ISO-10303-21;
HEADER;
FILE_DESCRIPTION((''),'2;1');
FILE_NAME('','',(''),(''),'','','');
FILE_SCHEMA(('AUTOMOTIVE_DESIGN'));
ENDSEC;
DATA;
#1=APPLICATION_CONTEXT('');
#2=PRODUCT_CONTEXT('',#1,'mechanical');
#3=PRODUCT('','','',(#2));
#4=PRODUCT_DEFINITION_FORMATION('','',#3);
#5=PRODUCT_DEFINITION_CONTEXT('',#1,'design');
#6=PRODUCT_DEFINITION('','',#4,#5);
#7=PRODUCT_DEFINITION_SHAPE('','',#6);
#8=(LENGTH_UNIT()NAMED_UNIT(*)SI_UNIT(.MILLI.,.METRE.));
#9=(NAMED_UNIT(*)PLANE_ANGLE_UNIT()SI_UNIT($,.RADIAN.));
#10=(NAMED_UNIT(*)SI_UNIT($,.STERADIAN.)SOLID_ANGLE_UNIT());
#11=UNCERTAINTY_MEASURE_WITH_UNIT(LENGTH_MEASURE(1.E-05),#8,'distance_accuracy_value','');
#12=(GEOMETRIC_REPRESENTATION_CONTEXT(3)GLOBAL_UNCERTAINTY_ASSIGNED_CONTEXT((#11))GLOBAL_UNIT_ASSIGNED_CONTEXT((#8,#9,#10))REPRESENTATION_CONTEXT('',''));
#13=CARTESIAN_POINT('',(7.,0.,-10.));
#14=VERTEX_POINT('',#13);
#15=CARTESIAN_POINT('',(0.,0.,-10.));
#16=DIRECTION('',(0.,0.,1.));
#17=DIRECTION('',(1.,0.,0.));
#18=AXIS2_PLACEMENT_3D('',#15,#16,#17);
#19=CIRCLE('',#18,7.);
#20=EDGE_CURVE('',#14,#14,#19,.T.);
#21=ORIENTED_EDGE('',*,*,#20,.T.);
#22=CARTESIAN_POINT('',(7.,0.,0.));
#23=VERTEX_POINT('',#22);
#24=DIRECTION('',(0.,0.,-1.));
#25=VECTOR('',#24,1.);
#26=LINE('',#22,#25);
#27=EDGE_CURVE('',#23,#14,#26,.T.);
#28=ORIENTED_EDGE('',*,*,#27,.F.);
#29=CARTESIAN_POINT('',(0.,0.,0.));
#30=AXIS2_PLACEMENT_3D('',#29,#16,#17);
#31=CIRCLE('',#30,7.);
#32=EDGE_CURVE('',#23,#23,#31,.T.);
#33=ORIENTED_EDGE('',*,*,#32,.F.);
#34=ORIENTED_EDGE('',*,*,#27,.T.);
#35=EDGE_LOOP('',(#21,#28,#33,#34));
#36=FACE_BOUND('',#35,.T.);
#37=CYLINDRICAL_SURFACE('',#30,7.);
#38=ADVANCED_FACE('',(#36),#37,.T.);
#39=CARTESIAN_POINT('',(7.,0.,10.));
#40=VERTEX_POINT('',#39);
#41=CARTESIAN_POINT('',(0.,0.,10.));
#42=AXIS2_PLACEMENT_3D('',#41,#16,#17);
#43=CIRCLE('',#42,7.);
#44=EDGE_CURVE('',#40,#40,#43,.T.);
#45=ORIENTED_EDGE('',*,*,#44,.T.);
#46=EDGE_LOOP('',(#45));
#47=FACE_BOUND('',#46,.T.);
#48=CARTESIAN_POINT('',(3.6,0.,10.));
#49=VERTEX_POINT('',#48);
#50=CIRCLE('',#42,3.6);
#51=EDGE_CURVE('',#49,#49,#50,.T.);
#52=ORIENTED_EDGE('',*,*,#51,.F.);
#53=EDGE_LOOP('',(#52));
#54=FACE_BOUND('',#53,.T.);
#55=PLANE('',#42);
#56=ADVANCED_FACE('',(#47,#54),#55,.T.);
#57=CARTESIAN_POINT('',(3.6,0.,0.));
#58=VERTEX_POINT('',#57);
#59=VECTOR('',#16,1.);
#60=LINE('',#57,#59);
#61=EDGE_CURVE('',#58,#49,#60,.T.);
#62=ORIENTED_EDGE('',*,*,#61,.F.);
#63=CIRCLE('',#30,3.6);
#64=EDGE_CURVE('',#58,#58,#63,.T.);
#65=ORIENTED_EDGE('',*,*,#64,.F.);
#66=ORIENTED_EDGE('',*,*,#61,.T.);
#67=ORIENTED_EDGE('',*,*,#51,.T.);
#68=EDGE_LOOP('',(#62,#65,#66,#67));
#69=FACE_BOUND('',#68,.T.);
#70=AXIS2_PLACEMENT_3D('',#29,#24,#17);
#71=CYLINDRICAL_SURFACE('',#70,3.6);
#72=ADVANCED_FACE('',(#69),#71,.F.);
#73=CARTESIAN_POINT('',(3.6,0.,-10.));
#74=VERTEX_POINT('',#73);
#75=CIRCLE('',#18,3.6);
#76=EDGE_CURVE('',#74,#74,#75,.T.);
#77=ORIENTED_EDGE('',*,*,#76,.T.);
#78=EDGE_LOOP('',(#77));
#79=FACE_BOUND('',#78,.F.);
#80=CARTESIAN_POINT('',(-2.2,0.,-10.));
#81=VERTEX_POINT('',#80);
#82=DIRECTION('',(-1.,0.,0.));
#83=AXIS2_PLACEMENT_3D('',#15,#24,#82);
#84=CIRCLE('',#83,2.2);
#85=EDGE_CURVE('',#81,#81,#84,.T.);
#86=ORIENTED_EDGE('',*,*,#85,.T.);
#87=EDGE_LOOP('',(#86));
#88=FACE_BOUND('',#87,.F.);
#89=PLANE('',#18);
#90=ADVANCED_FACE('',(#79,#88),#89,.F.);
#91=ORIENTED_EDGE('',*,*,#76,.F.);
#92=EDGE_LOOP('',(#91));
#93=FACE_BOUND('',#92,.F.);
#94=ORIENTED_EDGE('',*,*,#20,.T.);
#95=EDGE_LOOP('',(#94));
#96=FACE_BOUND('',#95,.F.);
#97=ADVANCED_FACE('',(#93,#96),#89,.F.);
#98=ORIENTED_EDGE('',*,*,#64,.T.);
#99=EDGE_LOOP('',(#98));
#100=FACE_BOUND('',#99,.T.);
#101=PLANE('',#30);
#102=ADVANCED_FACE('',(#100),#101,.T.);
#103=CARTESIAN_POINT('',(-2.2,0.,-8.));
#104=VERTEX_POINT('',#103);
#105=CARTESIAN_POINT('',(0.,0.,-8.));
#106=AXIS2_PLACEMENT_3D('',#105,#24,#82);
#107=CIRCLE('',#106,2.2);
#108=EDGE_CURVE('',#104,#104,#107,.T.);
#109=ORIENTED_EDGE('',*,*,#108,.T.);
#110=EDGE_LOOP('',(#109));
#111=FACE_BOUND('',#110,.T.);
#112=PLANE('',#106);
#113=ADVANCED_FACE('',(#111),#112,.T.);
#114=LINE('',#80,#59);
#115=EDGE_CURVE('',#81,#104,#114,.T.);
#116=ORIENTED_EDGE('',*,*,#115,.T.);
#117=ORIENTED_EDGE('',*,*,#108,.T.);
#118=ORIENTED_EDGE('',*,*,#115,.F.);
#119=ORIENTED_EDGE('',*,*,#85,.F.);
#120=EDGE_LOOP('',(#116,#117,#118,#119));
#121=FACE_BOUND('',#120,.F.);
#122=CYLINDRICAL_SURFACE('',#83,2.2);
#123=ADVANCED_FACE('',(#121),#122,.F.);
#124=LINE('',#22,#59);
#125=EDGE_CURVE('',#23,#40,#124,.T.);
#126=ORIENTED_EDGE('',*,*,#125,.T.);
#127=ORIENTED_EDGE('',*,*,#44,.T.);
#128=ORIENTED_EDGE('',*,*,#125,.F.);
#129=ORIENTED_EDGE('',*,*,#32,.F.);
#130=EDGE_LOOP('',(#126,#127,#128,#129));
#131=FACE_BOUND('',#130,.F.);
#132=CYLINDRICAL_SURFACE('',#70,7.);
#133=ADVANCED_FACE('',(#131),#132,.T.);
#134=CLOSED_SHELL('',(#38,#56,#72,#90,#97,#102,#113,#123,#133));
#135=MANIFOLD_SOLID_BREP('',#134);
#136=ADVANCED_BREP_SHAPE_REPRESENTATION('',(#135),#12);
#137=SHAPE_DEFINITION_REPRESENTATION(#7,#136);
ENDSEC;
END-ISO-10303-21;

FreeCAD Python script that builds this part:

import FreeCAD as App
import Part
import Sketcher
Q = App.Units.Quantity

doc = App.newDocument("Part")
body = doc.addObject("PartDesign::Body", "Body")

sketch1 = doc.addObject("Sketcher::SketchObject", "Sketch")
body.addObject(sketch1)
sketch1.AttachmentSupport = (doc.XY_Plane, [""])
sketch1.MapMode = "FlatFace"
sketch1.addGeometry(Part.Circle(App.Vector(0, 0, 0), App.Vector(0, 0, 1), 7), False)
sketch1.addGeometry(Part.Circle(App.Vector(0, 0, 0), App.Vector(0, 0, 1), 3.6), False)
sketch1.addConstraint(Sketcher.Constraint("Coincident", 0, 3, -1, 1))
sketch1.addConstraint(Sketcher.Constraint("Coincident", 1, 3, -1, 1))
sketch1.addConstraint(Sketcher.Constraint("Diameter", 0, Q("14 mm")))
sketch1.addConstraint(Sketcher.Constraint("Diameter", 1, Q("7.2 mm")))
pad1 = doc.addObject("PartDesign::Pad", "Pad")
body.addObject(pad1)
pad1.Profile = sketch1
pad1.Length = 20
pad1.Midplane = True

sketch2 = doc.addObject("Sketcher::SketchObject", "Sketch001")
body.addObject(sketch2)
sketch2.AttachmentSupport = (doc.XY_Plane, [""])
sketch2.MapMode = "FlatFace"
sketch2.addGeometry(Part.Circle(App.Vector(0, 0, 0), App.Vector(0, 0, 1), 3.6), False)
sketch2.addConstraint(Sketcher.Constraint("Coincident", 0, 3, -1, 1))
sketch2.addConstraint(Sketcher.Constraint("Diameter", 0, Q("7.2 mm")))
pad2 = doc.addObject("PartDesign::Pad", "Pad001")
body.addObject(pad2)
pad2.Profile = sketch2
pad2.Length = 10
pad2.Reversed = True

sketch3 = doc.addObject("Sketcher::SketchObject", "Sketch002")
body.addObject(sketch3)
sketch3.AttachmentSupport = (doc.XY_Plane, [""])
sketch3.MapMode = "FlatFace"
sketch3.AttachmentOffset = App.Placement(App.Vector(0, 0, -10), App.Rotation())
sketch3.addGeometry(Part.Circle(App.Vector(0, 0, 0), App.Vector(0, 0, 1), 2.2), False)
sketch3.addConstraint(Sketcher.Constraint("Coincident", 0, 3, -1, 1))
sketch3.addConstraint(Sketcher.Constraint("Diameter", 0, Q("4.4 mm")))
pocket1 = doc.addObject("PartDesign::Pocket", "Pocket")
body.addObject(pocket1)
pocket1.Profile = sketch3
pocket1.Length = 2
pocket1.Reversed = True

doc.recompute()
